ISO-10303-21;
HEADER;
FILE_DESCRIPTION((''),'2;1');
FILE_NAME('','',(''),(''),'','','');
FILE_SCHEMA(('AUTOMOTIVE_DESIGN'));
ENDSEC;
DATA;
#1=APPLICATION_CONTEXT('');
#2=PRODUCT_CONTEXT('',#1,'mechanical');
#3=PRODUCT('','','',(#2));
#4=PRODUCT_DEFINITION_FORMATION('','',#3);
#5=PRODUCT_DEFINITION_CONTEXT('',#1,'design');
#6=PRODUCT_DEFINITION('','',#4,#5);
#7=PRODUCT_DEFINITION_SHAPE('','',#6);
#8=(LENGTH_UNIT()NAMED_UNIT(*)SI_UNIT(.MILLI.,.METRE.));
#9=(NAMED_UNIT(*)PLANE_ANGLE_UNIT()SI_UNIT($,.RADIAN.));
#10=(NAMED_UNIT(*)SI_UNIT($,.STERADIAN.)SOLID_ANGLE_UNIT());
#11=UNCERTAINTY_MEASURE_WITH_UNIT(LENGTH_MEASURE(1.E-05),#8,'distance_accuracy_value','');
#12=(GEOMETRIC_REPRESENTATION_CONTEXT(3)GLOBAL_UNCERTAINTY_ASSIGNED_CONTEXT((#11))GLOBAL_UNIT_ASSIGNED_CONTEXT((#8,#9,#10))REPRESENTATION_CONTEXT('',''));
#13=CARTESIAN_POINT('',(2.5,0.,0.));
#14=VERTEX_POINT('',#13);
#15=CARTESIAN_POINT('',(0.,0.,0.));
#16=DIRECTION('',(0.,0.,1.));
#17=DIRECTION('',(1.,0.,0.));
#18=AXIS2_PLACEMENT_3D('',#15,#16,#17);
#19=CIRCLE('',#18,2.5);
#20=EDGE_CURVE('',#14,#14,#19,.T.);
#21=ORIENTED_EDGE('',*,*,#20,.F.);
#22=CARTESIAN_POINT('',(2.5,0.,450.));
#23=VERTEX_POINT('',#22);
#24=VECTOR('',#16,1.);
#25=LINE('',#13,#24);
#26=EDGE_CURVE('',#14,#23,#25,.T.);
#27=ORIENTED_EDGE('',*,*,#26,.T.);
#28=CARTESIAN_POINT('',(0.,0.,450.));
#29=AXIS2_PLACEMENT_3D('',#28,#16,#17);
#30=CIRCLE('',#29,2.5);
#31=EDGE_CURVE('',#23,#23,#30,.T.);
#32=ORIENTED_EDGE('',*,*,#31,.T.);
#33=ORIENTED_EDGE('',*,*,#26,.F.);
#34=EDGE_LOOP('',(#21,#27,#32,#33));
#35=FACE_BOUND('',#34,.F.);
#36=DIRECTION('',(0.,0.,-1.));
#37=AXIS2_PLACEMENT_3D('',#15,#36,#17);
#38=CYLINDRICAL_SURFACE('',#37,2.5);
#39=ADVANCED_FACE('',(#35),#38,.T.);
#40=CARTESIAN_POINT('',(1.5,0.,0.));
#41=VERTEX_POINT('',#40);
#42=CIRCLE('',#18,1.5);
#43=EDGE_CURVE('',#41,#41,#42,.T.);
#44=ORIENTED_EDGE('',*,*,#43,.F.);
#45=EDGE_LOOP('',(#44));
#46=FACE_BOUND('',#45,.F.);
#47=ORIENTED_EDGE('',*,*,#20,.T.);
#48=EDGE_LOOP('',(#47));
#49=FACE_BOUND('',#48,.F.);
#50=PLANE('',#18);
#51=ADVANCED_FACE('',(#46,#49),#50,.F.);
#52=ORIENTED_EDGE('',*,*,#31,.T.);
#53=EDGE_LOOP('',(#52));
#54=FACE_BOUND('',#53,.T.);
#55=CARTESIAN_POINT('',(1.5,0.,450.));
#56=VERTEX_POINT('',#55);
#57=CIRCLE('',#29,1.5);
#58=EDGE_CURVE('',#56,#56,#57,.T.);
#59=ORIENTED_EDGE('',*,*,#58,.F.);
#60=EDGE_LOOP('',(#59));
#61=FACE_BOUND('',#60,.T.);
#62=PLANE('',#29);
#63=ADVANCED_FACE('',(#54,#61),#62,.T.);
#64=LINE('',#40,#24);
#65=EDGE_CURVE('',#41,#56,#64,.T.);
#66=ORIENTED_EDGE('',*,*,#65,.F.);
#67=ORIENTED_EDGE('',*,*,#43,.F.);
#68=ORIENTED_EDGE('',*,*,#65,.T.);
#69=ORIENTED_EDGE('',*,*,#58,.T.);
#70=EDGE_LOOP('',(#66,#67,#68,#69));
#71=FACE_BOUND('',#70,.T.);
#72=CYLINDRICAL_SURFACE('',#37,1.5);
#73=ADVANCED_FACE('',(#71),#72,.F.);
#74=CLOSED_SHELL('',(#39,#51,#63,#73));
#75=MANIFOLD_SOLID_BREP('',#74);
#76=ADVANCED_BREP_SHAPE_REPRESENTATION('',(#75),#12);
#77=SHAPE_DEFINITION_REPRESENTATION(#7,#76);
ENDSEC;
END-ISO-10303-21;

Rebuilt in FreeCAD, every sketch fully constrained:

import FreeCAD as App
import Part
import Sketcher
from FreeCAD import Vector
Q = App.Units.Quantity

doc = App.newDocument("Part")
params = doc.addObject("Spreadsheet::Sheet", "Params")
for row, (alias, value) in enumerate([
    ("sketch1_diameter", "5 mm"),
    ("sketch1_diameter2", "3 mm"),
    ("pad1_length", "450 mm"),
], start=1):
    params.set(f"A{row}", alias)
    params.set(f"B{row}", "=" + value)
    params.setAlias(f"B{row}", alias)

body = doc.addObject("PartDesign::Body", "Body")

# Sketch on XY plane
sketch1 = body.newObject("Sketcher::SketchObject", "Sketch")
sketch1.AttachmentSupport = (doc.getObject("XY_Plane"), [""])
sketch1.MapMode = "FlatFace"
sketch1.addGeometry(Part.Circle(Vector(0, 0, 0), Vector(0, 0, 1), 2.5), False)
sketch1.addGeometry(Part.Circle(Vector(0, 0, 0), Vector(0, 0, 1), 1.5), False)
sketch1.addConstraint(Sketcher.Constraint("Coincident", 0, 3, -1, 1))
sketch1.addConstraint(Sketcher.Constraint("Coincident", 1, 3, -1, 1))
sketch1.addConstraint(Sketcher.Constraint("Diameter", 0, Q("5 mm")))
sketch1.addConstraint(Sketcher.Constraint("Diameter", 1, Q("3 mm")))
sketch1.setExpression("Constraints[2]", "Params.sketch1_diameter")
sketch1.setExpression("Constraints[3]", "Params.sketch1_diameter2")
pad1 = body.newObject("PartDesign::Pad", "Pad")
pad1.Profile = sketch1
pad1.setExpression("Length", "Params.pad1_length")

doc.recompute()
